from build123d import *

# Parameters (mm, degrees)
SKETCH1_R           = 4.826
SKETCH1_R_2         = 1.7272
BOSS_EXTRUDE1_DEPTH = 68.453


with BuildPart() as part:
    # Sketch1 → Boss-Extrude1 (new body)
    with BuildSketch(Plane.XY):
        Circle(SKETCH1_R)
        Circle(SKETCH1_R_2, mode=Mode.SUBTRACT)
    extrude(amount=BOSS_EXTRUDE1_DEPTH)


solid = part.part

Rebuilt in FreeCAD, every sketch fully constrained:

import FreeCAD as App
import Part
import Sketcher
from FreeCAD import Vector
Q = App.Units.Quantity

doc = App.newDocument("Part")
body = doc.addObject("PartDesign::Body", "Body")

# Sketch on XY plane
sketch1 = doc.addObject("Sketcher::SketchObject", "Sketch")
body.addObject(sketch1)
sketch1.AttachmentSupport = (doc.XY_Plane, [""])
sketch1.MapMode = "FlatFace"
sketch1.addGeometry([
    Part.Circle(Vector(0, 0, 0), Vector(0, 0, 1), 4.8),
    Part.Circle(Vector(0, 0, 0), Vector(0, 0, 1), 1.7),
], False)
sketch1.addConstraint([
    Sketcher.Constraint("Coincident", 0, 3, -1, 1),
    Sketcher.Constraint("Coincident", 1, 3, -1, 1),
    Sketcher.Constraint("Diameter", 0, Q("0.38 in")),
    Sketcher.Constraint("Diameter", 1, Q("0.136 in")),
])
pad1 = doc.addObject("PartDesign::Pad", "Pad")
body.addObject(pad1)
pad1.Profile = sketch1
pad1.Length = Q("2.695 in")

doc.recompute()
